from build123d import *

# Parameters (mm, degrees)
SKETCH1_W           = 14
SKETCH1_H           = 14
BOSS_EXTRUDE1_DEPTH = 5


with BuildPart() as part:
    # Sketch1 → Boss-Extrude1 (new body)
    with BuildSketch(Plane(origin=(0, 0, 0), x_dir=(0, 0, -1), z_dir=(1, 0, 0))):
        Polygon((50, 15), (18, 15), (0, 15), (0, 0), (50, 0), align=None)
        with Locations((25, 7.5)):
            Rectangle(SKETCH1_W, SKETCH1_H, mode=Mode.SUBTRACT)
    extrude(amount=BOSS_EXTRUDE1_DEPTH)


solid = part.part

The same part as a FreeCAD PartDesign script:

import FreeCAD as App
import Part
import Sketcher
from FreeCAD import Vector


def add_polygon(sketch, points):
    """Adds a closed chain of lines whose ends are joined by coincident constraints."""
    first, n = sketch.GeometryCount, len(points)
    for a, b in zip(points, points[1:] + points[:1]):
        sketch.addGeometry(Part.LineSegment(App.Vector(*a, 0), App.Vector(*b, 0)), False)
    for i in range(n):
        sketch.addConstraint(Sketcher.Constraint("Coincident", first + i, 2, first + (i + 1) % n, 1))

doc = App.newDocument("Part")
body = doc.addObject("PartDesign::Body", "Body")

# Sketch on YZ plane
sketch1 = body.newObject("Sketcher::SketchObject", "Sketch")
sketch1.AttachmentSupport = (doc.getObject("YZ_Plane"), [""])
sketch1.MapMode = "FlatFace"
add_polygon(sketch1, [(15, -50), (15, 0), (0, 0), (0, -50)])  # lines 0-3
add_polygon(sketch1, [(0, -32), (0, -18), (14, -18), (14, -32)])  # lines 4-7
sketch1.addConstraint(Sketcher.Constraint("Vertical", 0))
sketch1.addConstraint(Sketcher.Constraint("Horizontal", 1))
sketch1.addConstraint(Sketcher.Constraint("Vertical", 2))
sketch1.addConstraint(Sketcher.Constraint("Horizontal", 3))
sketch1.addConstraint(Sketcher.Constraint("Vertical", 4))
sketch1.addConstraint(Sketcher.Constraint("Horizontal", 5))
sketch1.addConstraint(Sketcher.Constraint("Vertical", 6))
sketch1.addConstraint(Sketcher.Constraint("Horizontal", 7))
sketch1.addConstraint(Sketcher.Constraint("Coincident", 1, 2, -1, 1))
sketch1.addConstraint(Sketcher.Constraint("Equal", 7, 4))
sketch1.addConstraint(Sketcher.Constraint("DistanceX", 1, 2, 1, 1, 15.0))
sketch1.addConstraint(Sketcher.Constraint("DistanceX", 5, 1, 5, 2, 14.0))
sketch1.addConstraint(Sketcher.Constraint("DistanceY", 0, 1, 0, 2, 50.0))
sketch1.addConstraint(Sketcher.Constraint("DistanceY", 4, 2, -1, 1, 18.0))
sketch1.addConstraint(Sketcher.Constraint("DistanceX", -1, 1, 4, 2, 0.5))
pad1 = body.newObject("PartDesign::Pad", "Pad")
pad1.Profile = sketch1
pad1.Length = 5

doc.recompute()
